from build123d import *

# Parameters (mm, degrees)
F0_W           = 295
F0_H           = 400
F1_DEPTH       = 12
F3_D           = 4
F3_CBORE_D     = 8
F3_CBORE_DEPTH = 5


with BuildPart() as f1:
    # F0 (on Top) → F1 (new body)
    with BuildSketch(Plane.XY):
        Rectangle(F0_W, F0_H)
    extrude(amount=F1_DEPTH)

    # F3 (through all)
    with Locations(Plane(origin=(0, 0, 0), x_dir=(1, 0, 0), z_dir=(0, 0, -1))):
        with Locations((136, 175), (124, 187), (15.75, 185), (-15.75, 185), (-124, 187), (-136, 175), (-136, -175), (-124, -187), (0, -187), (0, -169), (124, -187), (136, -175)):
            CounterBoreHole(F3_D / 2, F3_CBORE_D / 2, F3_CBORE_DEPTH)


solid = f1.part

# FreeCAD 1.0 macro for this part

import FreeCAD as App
import Part
import Sketcher
Q = App.Units.Quantity


def add_polygon(sketch, points):
    """Adds a closed chain of lines whose ends are joined by coincident constraints."""
    first, n = sketch.GeometryCount, len(points)
    for a, b in zip(points, points[1:] + points[:1]):
        sketch.addGeometry(Part.LineSegment(App.Vector(*a, 0), App.Vector(*b, 0)), False)
    for i in range(n):
        sketch.addConstraint(Sketcher.Constraint("Coincident", first + i, 2, first + (i + 1) % n, 1))

doc = App.newDocument("Part")
body = doc.addObject("PartDesign::Body", "Body")

# Sketch on XY plane
sketch1 = doc.addObject("Sketcher::SketchObject", "Sketch")
body.addObject(sketch1)
sketch1.AttachmentSupport = (doc.XY_Plane, [""])
sketch1.MapMode = "FlatFace"
add_polygon(sketch1, [(-148, 200), (-148, -200), (148, -200), (148, 200)])  # lines 0-3
sketch1.addConstraint([
    Sketcher.Constraint("Vertical", 0),
    Sketcher.Constraint("Horizontal", 1),
    Sketcher.Constraint("Vertical", 2),
    Sketcher.Constraint("Horizontal", 3),
    Sketcher.Constraint("Symmetric", 0, 2, 2, 2, -1, 1),
    Sketcher.Constraint("DistanceX", 1, 1, 1, 2, Q("295 mm")),
    Sketcher.Constraint("DistanceY", 0, 2, 0, 1, Q("400 mm")),
])
pad1 = doc.addObject("PartDesign::Pad", "Pad")
body.addObject(pad1)
pad1.Profile = sketch1
pad1.Length = 12

# Sketch on XY plane
sketch2 = doc.addObject("Sketcher::SketchObject", "Sketch001")
body.addObject(sketch2)
sketch2.AttachmentSupport = (doc.XY_Plane, [""])
sketch2.MapMode = "FlatFace"
sketch2.addGeometry([
    Part.Circle(App.Vector(136, -175, 0), App.Vector(0, 0, 1), 2),  # 0
    Part.Circle(App.Vector(124, -187, 0), App.Vector(0, 0, 1), 2),  # 1
    Part.Circle(App.Vector(15.8, -185, 0), App.Vector(0, 0, 1), 2),  # 2
    Part.Circle(App.Vector(-15.8, -185, 0), App.Vector(0, 0, 1), 2),  # 3
    Part.Circle(App.Vector(-124, -187, 0), App.Vector(0, 0, 1), 2),  # 4
    Part.Circle(App.Vector(-136, -175, 0), App.Vector(0, 0, 1), 2),  # 5
    Part.Circle(App.Vector(-136, 175, 0), App.Vector(0, 0, 1), 2),  # 6
    Part.Circle(App.Vector(-124, 187, 0), App.Vector(0, 0, 1), 2),  # 7
    Part.Circle(App.Vector(0, 187, 0), App.Vector(0, 0, 1), 2),  # 8
    Part.Circle(App.Vector(0, 169, 0), App.Vector(0, 0, 1), 2),  # 9
    Part.Circle(App.Vector(124, 187, 0), App.Vector(0, 0, 1), 2),  # 10
    Part.Circle(App.Vector(136, 175, 0), App.Vector(0, 0, 1), 2),  # 11
], False)
sketch2.addConstraint([
    Sketcher.Constraint("Equal", 0, 1),
    Sketcher.Constraint("Equal", 1, 2),
    Sketcher.Constraint("Equal", 2, 3),
    Sketcher.Constraint("Equal", 3, 4),
    Sketcher.Constraint("Equal", 4, 5),
    Sketcher.Constraint("Equal", 5, 6),
    Sketcher.Constraint("Equal", 6, 7),
    Sketcher.Constraint("Equal", 7, 8),
    Sketcher.Constraint("Equal", 8, 9),
    Sketcher.Constraint("Equal", 9, 10),
    Sketcher.Constraint("Equal", 10, 11),
    Sketcher.Constraint("Symmetric", 0, 3, 6, 3, -1, 1),
    Sketcher.Constraint("Symmetric", 1, 3, 7, 3, -1, 1),
    Sketcher.Constraint("Symmetric", 4, 3, 10, 3, -1, 1),
    Sketcher.Constraint("Symmetric", 5, 3, 11, 3, -1, 1),
    Sketcher.Constraint("Symmetric", 2, 3, 3, 3, -2),
    Sketcher.Constraint("Symmetric", 1, 3, 4, 3, -2),
    Sketcher.Constraint("Symmetric", 0, 3, 5, 3, -2),
    Sketcher.Constraint("PointOnObject", 8, 3, -2),
    Sketcher.Constraint("PointOnObject", 9, 3, -2),
    Sketcher.Constraint("Horizontal", 7, 3, 8, 3),
    Sketcher.Constraint("Diameter", 0, Q("4 mm")),
    Sketcher.Constraint("DistanceX", -1, 1, 0, 3, Q("136 mm")),
    Sketcher.Constraint("DistanceY", 0, 3, -1, 1, Q("175 mm")),
    Sketcher.Constraint("DistanceX", -1, 1, 1, 3, Q("124 mm")),
    Sketcher.Constraint("DistanceY", 1, 3, -1, 1, Q("187 mm")),
    Sketcher.Constraint("DistanceY", 2, 3, -1, 1, Q("185 mm")),
    Sketcher.Constraint("DistanceY", -1, 1, 9, 3, Q("169 mm")),
    Sketcher.Constraint("DistanceX", 3, 3, 2, 3, Q("31.5 mm")),
])
doc.recompute()
hole = doc.addObject("PartDesign::Hole", "Hole")
body.addObject(hole)
hole.Profile = sketch2
hole.ThreadType = "None"
hole.Diameter = 4
hole.DepthType = "ThroughAll"
hole.HoleCutType = "Counterbore"
hole.HoleCutDiameter = 8
hole.HoleCutDepth = 5
hole.Reversed = True

doc.recompute()
